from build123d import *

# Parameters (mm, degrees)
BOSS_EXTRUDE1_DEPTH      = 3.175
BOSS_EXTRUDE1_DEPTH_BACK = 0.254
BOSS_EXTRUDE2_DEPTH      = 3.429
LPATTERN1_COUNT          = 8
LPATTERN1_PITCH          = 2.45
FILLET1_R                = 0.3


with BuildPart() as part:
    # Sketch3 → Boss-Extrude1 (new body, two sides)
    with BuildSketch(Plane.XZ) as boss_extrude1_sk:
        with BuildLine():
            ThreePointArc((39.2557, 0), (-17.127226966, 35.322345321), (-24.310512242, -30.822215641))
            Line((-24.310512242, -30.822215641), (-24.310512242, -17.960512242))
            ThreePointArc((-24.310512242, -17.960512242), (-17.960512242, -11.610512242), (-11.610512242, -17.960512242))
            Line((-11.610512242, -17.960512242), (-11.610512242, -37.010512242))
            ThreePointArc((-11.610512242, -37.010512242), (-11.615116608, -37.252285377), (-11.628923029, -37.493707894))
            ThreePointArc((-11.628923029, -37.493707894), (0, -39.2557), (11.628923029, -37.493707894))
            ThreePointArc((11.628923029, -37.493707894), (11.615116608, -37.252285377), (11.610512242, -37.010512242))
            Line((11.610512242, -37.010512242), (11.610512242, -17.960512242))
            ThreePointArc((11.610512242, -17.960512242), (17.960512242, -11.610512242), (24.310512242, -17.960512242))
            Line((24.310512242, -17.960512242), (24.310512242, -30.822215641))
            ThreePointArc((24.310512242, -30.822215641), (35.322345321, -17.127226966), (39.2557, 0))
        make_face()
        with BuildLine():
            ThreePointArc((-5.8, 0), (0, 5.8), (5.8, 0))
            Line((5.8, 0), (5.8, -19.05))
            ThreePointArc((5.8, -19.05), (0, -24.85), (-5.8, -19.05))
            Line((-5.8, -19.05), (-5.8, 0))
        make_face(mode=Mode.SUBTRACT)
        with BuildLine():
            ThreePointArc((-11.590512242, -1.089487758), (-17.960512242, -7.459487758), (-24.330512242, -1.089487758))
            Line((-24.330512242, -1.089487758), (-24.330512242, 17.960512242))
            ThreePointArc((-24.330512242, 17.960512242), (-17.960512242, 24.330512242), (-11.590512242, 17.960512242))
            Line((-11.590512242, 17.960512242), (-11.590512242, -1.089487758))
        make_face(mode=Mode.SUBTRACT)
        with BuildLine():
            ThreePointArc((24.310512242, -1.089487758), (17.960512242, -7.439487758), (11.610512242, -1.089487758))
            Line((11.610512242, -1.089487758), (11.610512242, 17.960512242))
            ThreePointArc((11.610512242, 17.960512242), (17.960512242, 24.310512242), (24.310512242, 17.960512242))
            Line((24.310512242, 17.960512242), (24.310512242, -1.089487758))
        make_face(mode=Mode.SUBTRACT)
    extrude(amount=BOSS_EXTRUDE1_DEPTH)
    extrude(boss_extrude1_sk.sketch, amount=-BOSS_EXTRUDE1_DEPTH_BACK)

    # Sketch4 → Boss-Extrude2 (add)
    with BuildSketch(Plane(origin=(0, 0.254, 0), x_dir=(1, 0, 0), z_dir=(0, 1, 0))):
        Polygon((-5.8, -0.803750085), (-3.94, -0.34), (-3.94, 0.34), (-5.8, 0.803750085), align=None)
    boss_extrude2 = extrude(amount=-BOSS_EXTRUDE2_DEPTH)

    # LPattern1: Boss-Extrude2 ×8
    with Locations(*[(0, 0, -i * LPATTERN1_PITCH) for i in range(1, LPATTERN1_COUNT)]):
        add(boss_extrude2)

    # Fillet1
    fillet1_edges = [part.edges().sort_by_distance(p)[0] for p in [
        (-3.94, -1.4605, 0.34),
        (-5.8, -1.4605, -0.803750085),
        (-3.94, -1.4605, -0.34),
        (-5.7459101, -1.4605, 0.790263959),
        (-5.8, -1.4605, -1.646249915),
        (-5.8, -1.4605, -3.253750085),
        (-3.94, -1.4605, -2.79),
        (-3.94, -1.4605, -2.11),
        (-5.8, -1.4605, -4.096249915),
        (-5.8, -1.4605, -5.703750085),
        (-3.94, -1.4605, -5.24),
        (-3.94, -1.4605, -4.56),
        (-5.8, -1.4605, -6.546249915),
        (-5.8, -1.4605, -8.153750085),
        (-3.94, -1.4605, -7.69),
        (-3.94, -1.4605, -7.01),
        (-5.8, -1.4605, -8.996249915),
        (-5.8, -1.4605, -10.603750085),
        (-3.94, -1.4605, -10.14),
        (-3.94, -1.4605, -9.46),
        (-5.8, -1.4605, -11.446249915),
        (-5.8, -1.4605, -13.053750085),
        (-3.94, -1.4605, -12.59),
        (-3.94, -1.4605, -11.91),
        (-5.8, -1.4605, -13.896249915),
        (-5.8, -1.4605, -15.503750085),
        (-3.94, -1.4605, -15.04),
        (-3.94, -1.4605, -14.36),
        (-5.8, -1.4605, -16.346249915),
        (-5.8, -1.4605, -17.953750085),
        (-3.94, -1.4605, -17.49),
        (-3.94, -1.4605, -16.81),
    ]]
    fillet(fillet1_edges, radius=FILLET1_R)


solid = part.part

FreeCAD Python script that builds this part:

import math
import FreeCAD as App
import Part
import Sketcher
from FreeCAD import Vector
Q = App.Units.Quantity


def edges_at(feature, points):
    """Names of the edges that pass closest to the given points."""
    edges = feature.Shape.Edges
    near = lambda p: min(range(len(edges)), key=lambda i: edges[i].distToShape(Part.Vertex(*p))[0])
    return sorted({f"Edge{near(p) + 1}" for p in points})

doc = App.newDocument("Part")
body = doc.addObject("PartDesign::Body", "Body")

# Sketch on XZ plane
sketch1 = body.newObject("Sketcher::SketchObject", "Sketch")
sketch1.AttachmentSupport = (doc.getObject("XZ_Plane"), [""])
sketch1.MapMode = "FlatFace"
sketch1.addGeometry(Part.ArcOfCircle(Part.Circle(Vector(0, 0, 0), Vector(0, 0, 1), 39.26), math.radians(0), math.radians(232)), False)
sketch1.addGeometry(Part.LineSegment(Vector(-24.31, -30.82, 0), Vector(-24.31, -17.96, 0)), False)
sketch1.addGeometry(Part.ArcOfCircle(Part.Circle(Vector(-17.96, -17.96, 0), Vector(0, 0, 1), 6.35), math.radians(0), math.radians(180)), False)
sketch1.addGeometry(Part.LineSegment(Vector(-11.61, -17.96, 0), Vector(-11.61, -37.01, 0)), False)
sketch1.addGeometry(Part.ArcOfCircle(Part.Circle(Vector(-17.96, -37.01, 0), Vector(0, 0, 1), 6.35), math.radians(-4.36), math.radians(0)), False)
sketch1.addGeometry(Part.ArcOfCircle(Part.Circle(Vector(0, 0, 0), Vector(0, 0, 1), 39.26), math.radians(-107), math.radians(-73)), False)
sketch1.addGeometry(Part.ArcOfCircle(Part.Circle(Vector(17.96, -37.01, 0), Vector(0, 0, 1), 6.35), math.radians(180), math.radians(184.36)), False)
sketch1.addGeometry(Part.LineSegment(Vector(11.61, -37.01, 0), Vector(11.61, -17.96, 0)), False)
sketch1.addGeometry(Part.ArcOfCircle(Part.Circle(Vector(17.96, -17.96, 0), Vector(0, 0, 1), 6.35), math.radians(0), math.radians(180)), False)
sketch1.addGeometry(Part.LineSegment(Vector(24.31, -17.96, 0), Vector(24.31, -30.82, 0)), False)
sketch1.addGeometry(Part.ArcOfCircle(Part.Circle(Vector(0, 0, 0), Vector(0, 0, 1), 39.26), math.radians(-52), math.radians(0)), False)
sketch1.addGeometry(Part.LineSegment(Vector(-5.8, -19.05, 0), Vector(-5.8, 0, 0)), False)
sketch1.addGeometry(Part.ArcOfCircle(Part.Circle(Vector(0, 0, 0), Vector(0, 0, 1), 5.8), math.radians(0), math.radians(180)), False)
sketch1.addGeometry(Part.LineSegment(Vector(5.8, 0, 0), Vector(5.8, -19.05, 0)), False)
sketch1.addGeometry(Part.ArcOfCircle(Part.Circle(Vector(0, -19.05, 0), Vector(0, 0, 1), 5.8), math.radians(180), math.radians(360)), False)
sketch1.addGeometry(Part.LineSegment(Vector(-11.59, 17.96, 0), Vector(-11.59, -1.09, 0)), False)
sketch1.addGeometry(Part.ArcOfCircle(Part.Circle(Vector(-17.96, -1.09, 0), Vector(0, 0, 1), 6.37), math.radians(180), math.radians(360)), False)
sketch1.addGeometry(Part.LineSegment(Vector(-24.33, -1.09, 0), Vector(-24.33, 17.96, 0)), False)
sketch1.addGeometry(Part.ArcOfCircle(Part.Circle(Vector(-17.96, 17.96, 0), Vector(0, 0, 1), 6.37), math.radians(0), math.radians(180)), False)
sketch1.addGeometry(Part.LineSegment(Vector(24.31, 17.96, 0), Vector(24.31, -1.09, 0)), False)
sketch1.addGeometry(Part.ArcOfCircle(Part.Circle(Vector(17.96, -1.09, 0), Vector(0, 0, 1), 6.35), math.radians(180), math.radians(360)), False)
sketch1.addGeometry(Part.LineSegment(Vector(11.61, -1.09, 0), Vector(11.61, 17.96, 0)), False)
sketch1.addGeometry(Part.ArcOfCircle(Part.Circle(Vector(17.96, 17.96, 0), Vector(0, 0, 1), 6.35), math.radians(0), math.radians(180)), False)
sketch1.addConstraint(Sketcher.Constraint("Coincident", 0, 2, 1, 1))
sketch1.addConstraint(Sketcher.Constraint("Tangent", 1, 2, 2, 2))
sketch1.addConstraint(Sketcher.Constraint("Tangent", 2, 1, 3, 1))
sketch1.addConstraint(Sketcher.Constraint("Tangent", 3, 2, 4, 2))
sketch1.addConstraint(Sketcher.Constraint("Coincident", 4, 1, 5, 1))
sketch1.addConstraint(Sketcher.Constraint("Coincident", 5, 2, 6, 2))
sketch1.addConstraint(Sketcher.Constraint("Tangent", 6, 1, 7, 1))
sketch1.addConstraint(Sketcher.Constraint("Tangent", 7, 2, 8, 2))
sketch1.addConstraint(Sketcher.Constraint("Tangent", 8, 1, 9, 1))
sketch1.addConstraint(Sketcher.Constraint("Coincident", 9, 2, 10, 1))
sketch1.addConstraint(Sketcher.Constraint("Tangent", 10, 2, 0, 1))
sketch1.addConstraint(Sketcher.Constraint("Tangent", 11, 2, 12, 2))
sketch1.addConstraint(Sketcher.Constraint("Tangent", 12, 1, 13, 1))
sketch1.addConstraint(Sketcher.Constraint("Tangent", 13, 2, 14, 2))
sketch1.addConstraint(Sketcher.Constraint("Tangent", 14, 1, 11, 1))
sketch1.addConstraint(Sketcher.Constraint("Tangent", 15, 2, 16, 2))
sketch1.addConstraint(Sketcher.Constraint("Tangent", 16, 1, 17, 1))
sketch1.addConstraint(Sketcher.Constraint("Tangent", 17, 2, 18, 2))
sketch1.addConstraint(Sketcher.Constraint("Tangent", 18, 1, 15, 1))
sketch1.addConstraint(Sketcher.Constraint("Tangent", 19, 2, 20, 2))
sketch1.addConstraint(Sketcher.Constraint("Tangent", 20, 1, 21, 1))
sketch1.addConstraint(Sketcher.Constraint("Tangent", 21, 2, 22, 2))
sketch1.addConstraint(Sketcher.Constraint("Tangent", 22, 1, 19, 1))
sketch1.addConstraint(Sketcher.Constraint("Vertical", 1))
sketch1.addConstraint(Sketcher.Constraint("Vertical", 3))
sketch1.addConstraint(Sketcher.Constraint("Vertical", 7))
sketch1.addConstraint(Sketcher.Constraint("Vertical", 9))
sketch1.addConstraint(Sketcher.Constraint("Vertical", 11))
sketch1.addConstraint(Sketcher.Constraint("Vertical", 13))
sketch1.addConstraint(Sketcher.Constraint("Vertical", 15))
sketch1.addConstraint(Sketcher.Constraint("Vertical", 17))
sketch1.addConstraint(Sketcher.Constraint("Vertical", 19))
sketch1.addConstraint(Sketcher.Constraint("Vertical", 21))
sketch1.addConstraint(Sketcher.Constraint("Coincident", 0, 3, -1, 1))
sketch1.addConstraint(Sketcher.Constraint("Coincident", 5, 3, -1, 1))
sketch1.addConstraint(Sketcher.Constraint("Coincident", 12, 3, -1, 1))
sketch1.addConstraint(Sketcher.Constraint("Equal", 2, 4))
sketch1.addConstraint(Sketcher.Constraint("Equal", 0, 5))
sketch1.addConstraint(Sketcher.Constraint("Equal", 4, 6))
sketch1.addConstraint(Sketcher.Constraint("Equal", 6, 8))
sketch1.addConstraint(Sketcher.Constraint("Equal", 5, 10))
sketch1.addConstraint(Sketcher.Constraint("Equal", 8, 20))
sketch1.addConstraint(Sketcher.Constraint("Symmetric", 8, 3, 18, 3, -1, 1))
sketch1.addConstraint(Sketcher.Constraint("Symmetric", 2, 3, 22, 3, -1, 1))
sketch1.addConstraint(Sketcher.Constraint("Symmetric", 4, 3, 6, 3, -2))
sketch1.addConstraint(Sketcher.Constraint("PointOnObject", 10, 2, -1))
sketch1.addConstraint(Sketcher.Constraint("Horizontal", 2, 3, 8, 3))
sketch1.addConstraint(Sketcher.Constraint("Horizontal", 16, 3, 20, 3))
sketch1.addConstraint(Sketcher.Constraint("Equal", 7, 11))
sketch1.addConstraint(Sketcher.Constraint("Equal", 13, 15))
sketch1.addConstraint(Sketcher.Constraint("Radius", 2, Q("0.25 in")))
sketch1.addConstraint(Sketcher.Constraint("DistanceY", 3, 2, 3, 1, Q("0.75 in")))
sketch1.addConstraint(Sketcher.Constraint("Radius", 0, Q("1.5455 in")))
sketch1.addConstraint(Sketcher.Constraint("Radius", 12, 5.8))
sketch1.addConstraint(Sketcher.Constraint("Radius", 16, 6.37))
sketch1.addConstraint(Sketcher.Constraint("DistanceY", 1, 1, 1, 2, 12.861703))
sketch1.addConstraint(Sketcher.Constraint("DistanceX", 4, 1, 3, 2, 0.018411))
pad1 = body.newObject("PartDesign::Pad", "Pad")
pad1.Profile = sketch1
pad1.Type = "TwoLengths"
pad1.Length = Q("0.125 in")
pad1.Length2 = Q("0.01 in")

# Sketch on XZ plane
sketch2 = body.newObject("Sketcher::SketchObject", "Sketch001")
sketch2.AttachmentSupport = (doc.getObject("XZ_Plane"), [""])
sketch2.MapMode = "FlatFace"
sketch2.AttachmentOffset = App.Placement(Vector(0, 0, -0.01 * 25.4), App.Rotation())
sketch2.addGeometry(Part.LineSegment(Vector(-5.8, 0.8, 0), Vector(-3.9, 0.3, 0)), False)
sketch2.addGeometry(Part.LineSegment(Vector(-3.9, 0.3, 0), Vector(-3.9, -0.3, 0)), False)
sketch2.addGeometry(Part.LineSegment(Vector(-3.9, -0.3, 0), Vector(-5.8, -0.8, 0)), False)
sketch2.addGeometry(Part.LineSegment(Vector(-5.8, -0.8, 0), Vector(-5.8, 0.8, 0)), False)
sketch2.addConstraint(Sketcher.Constraint("Coincident", 0, 2, 1, 1))
sketch2.addConstraint(Sketcher.Constraint("Coincident", 1, 2, 2, 1))
sketch2.addConstraint(Sketcher.Constraint("Coincident", 2, 2, 3, 1))
sketch2.addConstraint(Sketcher.Constraint("Coincident", 3, 2, 0, 1))
sketch2.addConstraint(Sketcher.Constraint("Vertical", 1))
sketch2.addConstraint(Sketcher.Constraint("Vertical", 3))
sketch2.addConstraint(Sketcher.Constraint("Equal", 0, 2))
sketch2.addConstraint(Sketcher.Constraint("Angle", 0, Q("-14 deg")))
sketch2.addConstraint(Sketcher.Constraint("DistanceY", 1, 2, 1, 1, 0.68))
sketch2.addConstraint(Sketcher.Constraint("DistanceY", 3, 1, 3, 2, 1.6075))
sketch2.addConstraint(Sketcher.Constraint("DistanceX", 0, 2, -1, 1, 3.94))
sketch2.addConstraint(Sketcher.Constraint("DistanceY", -1, 1, 0, 2, 0.34))
pad2 = body.newObject("PartDesign::Pad", "Pad001")
pad2.Profile = sketch2
pad2.Length = Q("0.135 in")
doc.recompute()

linearpattern = body.newObject("PartDesign::LinearPattern", "LinearPattern")
linearpattern.Originals = [pad2]
linearpattern.Direction = (doc.getObject("Z_Axis"), [""])
linearpattern.Mode = "offset"
linearpattern.Offset = 2.45
linearpattern.Occurrences = 8
linearpattern.Reversed = True
body.Tip = linearpattern
doc.recompute()

fillet = body.newObject("PartDesign::Fillet", "Fillet")
fillet.Base = (linearpattern, edges_at(linearpattern, [
    (-3.94, -1.46, 0.34),
    (-5.8, -1.46, -0.804),
    (-3.94, -1.46, -0.34),
    (-5.746, -1.46, 0.79),
    (-5.8, -1.46, -1.646),
    (-5.8, -1.46, -3.254),
    (-3.94, -1.46, -2.79),
    (-3.94, -1.46, -2.11),
    (-5.8, -1.46, -4.096),
    (-5.8, -1.46, -5.704),
    (-3.94, -1.46, -5.24),
    (-3.94, -1.46, -4.56),
    (-5.8, -1.46, -6.546),
    (-5.8, -1.46, -8.154),
    (-3.94, -1.46, -7.69),
    (-3.94, -1.46, -7.01),
    (-5.8, -1.46, -8.996),
    (-5.8, -1.46, -10.604),
    (-3.94, -1.46, -10.14),
    (-3.94, -1.46, -9.46),
    (-5.8, -1.46, -11.446),
    (-5.8, -1.46, -13.054),
    (-3.94, -1.46, -12.59),
    (-3.94, -1.46, -11.91),
    (-5.8, -1.46, -13.896),
    (-5.8, -1.46, -15.504),
    (-3.94, -1.46, -15.04),
    (-3.94, -1.46, -14.36),
    (-5.8, -1.46, -16.346),
    (-5.8, -1.46, -17.954),
    (-3.94, -1.46, -17.49),
    (-3.94, -1.46, -16.81),
]))
fillet.Radius = 0.3

doc.recompute()
